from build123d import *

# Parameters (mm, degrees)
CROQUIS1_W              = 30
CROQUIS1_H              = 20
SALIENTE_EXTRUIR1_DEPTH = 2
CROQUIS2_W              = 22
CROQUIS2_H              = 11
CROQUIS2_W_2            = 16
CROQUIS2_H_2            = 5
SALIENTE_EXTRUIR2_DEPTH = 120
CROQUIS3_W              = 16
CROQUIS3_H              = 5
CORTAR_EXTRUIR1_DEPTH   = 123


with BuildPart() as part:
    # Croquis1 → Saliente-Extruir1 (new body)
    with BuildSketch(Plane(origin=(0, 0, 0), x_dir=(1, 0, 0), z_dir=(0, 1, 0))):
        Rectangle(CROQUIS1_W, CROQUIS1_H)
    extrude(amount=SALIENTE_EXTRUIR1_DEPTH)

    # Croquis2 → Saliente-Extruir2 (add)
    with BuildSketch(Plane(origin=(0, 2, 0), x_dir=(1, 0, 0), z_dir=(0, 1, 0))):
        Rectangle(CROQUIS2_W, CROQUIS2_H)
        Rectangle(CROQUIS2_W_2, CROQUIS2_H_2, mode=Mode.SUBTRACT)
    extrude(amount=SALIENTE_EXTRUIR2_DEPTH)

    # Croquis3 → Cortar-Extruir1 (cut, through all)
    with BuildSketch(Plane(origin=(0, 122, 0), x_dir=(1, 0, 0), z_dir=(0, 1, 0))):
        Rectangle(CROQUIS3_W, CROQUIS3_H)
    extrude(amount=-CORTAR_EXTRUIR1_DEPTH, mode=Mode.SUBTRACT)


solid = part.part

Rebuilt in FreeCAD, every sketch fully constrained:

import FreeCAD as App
import Part
import Sketcher
from FreeCAD import Vector

doc = App.newDocument("Part")
params = doc.addObject("Spreadsheet::Sheet", "Params")
for row, (alias, value) in enumerate([
    ("sketch1_width", "30 mm"),
    ("sketch1_height", "20 mm"),
    ("pad1_length", "2 mm"),
    ("sketch2_width", "22 mm"),
    ("sketch2_width2", "16 mm"),
    ("sketch2_height", "11 mm"),
    ("sketch2_height2", "5 mm"),
    ("pad2_length", "120 mm"),
    ("sketch3_width", "16 mm"),
    ("sketch3_height", "5 mm"),
], start=1):
    params.set(f"A{row}", alias)
    params.set(f"B{row}", "=" + value)
    params.setAlias(f"B{row}", alias)

body = doc.addObject("PartDesign::Body", "Body")

sketch1 = doc.addObject("Sketcher::SketchObject", "Sketch")
body.addObject(sketch1)
sketch1.AttachmentSupport = (doc.XZ_Plane, [""])
sketch1.MapMode = "FlatFace"
sketch1.addGeometry(Part.LineSegment(Vector(-15, -10, 0), Vector(-15, 10, 0)), False)
sketch1.addGeometry(Part.LineSegment(Vector(-15, 10, 0), Vector(15, 10, 0)), False)
sketch1.addGeometry(Part.LineSegment(Vector(15, 10, 0), Vector(15, -10, 0)), False)
sketch1.addGeometry(Part.LineSegment(Vector(15, -10, 0), Vector(-15, -10, 0)), False)
sketch1.addConstraint(Sketcher.Constraint("Coincident", 0, 2, 1, 1))
sketch1.addConstraint(Sketcher.Constraint("Coincident", 1, 2, 2, 1))
sketch1.addConstraint(Sketcher.Constraint("Coincident", 2, 2, 3, 1))
sketch1.addConstraint(Sketcher.Constraint("Coincident", 3, 2, 0, 1))
sketch1.addConstraint(Sketcher.Constraint("Vertical", 0))
sketch1.addConstraint(Sketcher.Constraint("Horizontal", 1))
sketch1.addConstraint(Sketcher.Constraint("Vertical", 2))
sketch1.addConstraint(Sketcher.Constraint("Horizontal", 3))
sketch1.addConstraint(Sketcher.Constraint("Symmetric", 0, 2, 2, 2, -1, 1))
sketch1.addConstraint(Sketcher.Constraint("DistanceX", 1, 1, 1, 2, 30.0))
sketch1.addConstraint(Sketcher.Constraint("DistanceY", 0, 1, 0, 2, 20.0))
sketch1.setExpression("Constraints[9]", "Params.sketch1_width")
sketch1.setExpression("Constraints[10]", "Params.sketch1_height")
pad1 = doc.addObject("PartDesign::Pad", "Pad")
body.addObject(pad1)
pad1.Profile = sketch1
pad1.setExpression("Length", "Params.pad1_length")
pad1.Reversed = True

sketch2 = doc.addObject("Sketcher::SketchObject", "Sketch001")
body.addObject(sketch2)
sketch2.AttachmentSupport = (doc.XZ_Plane, [""])
sketch2.MapMode = "FlatFace"
sketch2.AttachmentOffset = App.Placement(Vector(0, 0, -2), App.Rotation())
sketch2.addGeometry(Part.LineSegment(Vector(-11, -6, 0), Vector(-11, 6, 0)), False)
sketch2.addGeometry(Part.LineSegment(Vector(-11, 6, 0), Vector(11, 6, 0)), False)
sketch2.addGeometry(Part.LineSegment(Vector(11, 6, 0), Vector(11, -6, 0)), False)
sketch2.addGeometry(Part.LineSegment(Vector(11, -6, 0), Vector(-11, -6, 0)), False)
sketch2.addGeometry(Part.LineSegment(Vector(8, 2, 0), Vector(-8, 2, 0)), False)
sketch2.addGeometry(Part.LineSegment(Vector(-8, 2, 0), Vector(-8, -2, 0)), False)
sketch2.addGeometry(Part.LineSegment(Vector(-8, -2, 0), Vector(8, -2, 0)), False)
sketch2.addGeometry(Part.LineSegment(Vector(8, -2, 0), Vector(8, 2, 0)), False)
sketch2.addConstraint(Sketcher.Constraint("Coincident", 0, 2, 1, 1))
sketch2.addConstraint(Sketcher.Constraint("Coincident", 1, 2, 2, 1))
sketch2.addConstraint(Sketcher.Constraint("Coincident", 2, 2, 3, 1))
sketch2.addConstraint(Sketcher.Constraint("Coincident", 3, 2, 0, 1))
sketch2.addConstraint(Sketcher.Constraint("Coincident", 4, 2, 5, 1))
sketch2.addConstraint(Sketcher.Constraint("Coincident", 5, 2, 6, 1))
sketch2.addConstraint(Sketcher.Constraint("Coincident", 6, 2, 7, 1))
sketch2.addConstraint(Sketcher.Constraint("Coincident", 7, 2, 4, 1))
sketch2.addConstraint(Sketcher.Constraint("Vertical", 0))
sketch2.addConstraint(Sketcher.Constraint("Horizontal", 1))
sketch2.addConstraint(Sketcher.Constraint("Vertical", 2))
sketch2.addConstraint(Sketcher.Constraint("Horizontal", 3))
sketch2.addConstraint(Sketcher.Constraint("Horizontal", 4))
sketch2.addConstraint(Sketcher.Constraint("Vertical", 5))
sketch2.addConstraint(Sketcher.Constraint("Horizontal", 6))
sketch2.addConstraint(Sketcher.Constraint("Vertical", 7))
sketch2.addConstraint(Sketcher.Constraint("Symmetric", 0, 2, 2, 2, -1, 1))
sketch2.addConstraint(Sketcher.Constraint("Symmetric", 4, 2, 6, 2, -1, 1))
sketch2.addConstraint(Sketcher.Constraint("DistanceX", 1, 1, 1, 2, 22.0))
sketch2.addConstraint(Sketcher.Constraint("DistanceX", 4, 2, 4, 1, 16.0))
sketch2.addConstraint(Sketcher.Constraint("DistanceY", 0, 1, 0, 2, 11.0))
sketch2.addConstraint(Sketcher.Constraint("DistanceY", 5, 2, 5, 1, 5.0))
sketch2.setExpression("Constraints[18]", "Params.sketch2_width")
sketch2.setExpression("Constraints[19]", "Params.sketch2_width2")
sketch2.setExpression("Constraints[20]", "Params.sketch2_height")
sketch2.setExpression("Constraints[21]", "Params.sketch2_height2")
pad2 = doc.addObject("PartDesign::Pad", "Pad001")
body.addObject(pad2)
pad2.Profile = sketch2
pad2.setExpression("Length", "Params.pad2_length")
pad2.Reversed = True

sketch3 = doc.addObject("Sketcher::SketchObject", "Sketch002")
body.addObject(sketch3)
sketch3.AttachmentSupport = (doc.XZ_Plane, [""])
sketch3.MapMode = "FlatFace"
sketch3.AttachmentOffset = App.Placement(Vector(0, 0, -122), App.Rotation())
sketch3.addGeometry(Part.LineSegment(Vector(-8, -2, 0), Vector(-8, 2, 0)), False)
sketch3.addGeometry(Part.LineSegment(Vector(-8, 2, 0), Vector(8, 2, 0)), False)
sketch3.addGeometry(Part.LineSegment(Vector(8, 2, 0), Vector(8, -2, 0)), False)
sketch3.addGeometry(Part.LineSegment(Vector(8, -2, 0), Vector(-8, -2, 0)), False)
sketch3.addConstraint(Sketcher.Constraint("Coincident", 0, 2, 1, 1))
sketch3.addConstraint(Sketcher.Constraint("Coincident", 1, 2, 2, 1))
sketch3.addConstraint(Sketcher.Constraint("Coincident", 2, 2, 3, 1))
sketch3.addConstraint(Sketcher.Constraint("Coincident", 3, 2, 0, 1))
sketch3.addConstraint(Sketcher.Constraint("Vertical", 0))
sketch3.addConstraint(Sketcher.Constraint("Horizontal", 1))
sketch3.addConstraint(Sketcher.Constraint("Vertical", 2))
sketch3.addConstraint(Sketcher.Constraint("Horizontal", 3))
sketch3.addConstraint(Sketcher.Constraint("Symmetric", 0, 2, 2, 2, -1, 1))
sketch3.addConstraint(Sketcher.Constraint("DistanceX", 1, 1, 1, 2, 16.0))
sketch3.addConstraint(Sketcher.Constraint("DistanceY", 0, 1, 0, 2, 5.0))
sketch3.setExpression("Constraints[9]", "Params.sketch3_width")
sketch3.setExpression("Constraints[10]", "Params.sketch3_height")
pocket1 = doc.addObject("PartDesign::Pocket", "Pocket")
body.addObject(pocket1)
pocket1.Profile = sketch3
pocket1.Type = "ThroughAll"
pocket1.Reversed = True

doc.recompute()
